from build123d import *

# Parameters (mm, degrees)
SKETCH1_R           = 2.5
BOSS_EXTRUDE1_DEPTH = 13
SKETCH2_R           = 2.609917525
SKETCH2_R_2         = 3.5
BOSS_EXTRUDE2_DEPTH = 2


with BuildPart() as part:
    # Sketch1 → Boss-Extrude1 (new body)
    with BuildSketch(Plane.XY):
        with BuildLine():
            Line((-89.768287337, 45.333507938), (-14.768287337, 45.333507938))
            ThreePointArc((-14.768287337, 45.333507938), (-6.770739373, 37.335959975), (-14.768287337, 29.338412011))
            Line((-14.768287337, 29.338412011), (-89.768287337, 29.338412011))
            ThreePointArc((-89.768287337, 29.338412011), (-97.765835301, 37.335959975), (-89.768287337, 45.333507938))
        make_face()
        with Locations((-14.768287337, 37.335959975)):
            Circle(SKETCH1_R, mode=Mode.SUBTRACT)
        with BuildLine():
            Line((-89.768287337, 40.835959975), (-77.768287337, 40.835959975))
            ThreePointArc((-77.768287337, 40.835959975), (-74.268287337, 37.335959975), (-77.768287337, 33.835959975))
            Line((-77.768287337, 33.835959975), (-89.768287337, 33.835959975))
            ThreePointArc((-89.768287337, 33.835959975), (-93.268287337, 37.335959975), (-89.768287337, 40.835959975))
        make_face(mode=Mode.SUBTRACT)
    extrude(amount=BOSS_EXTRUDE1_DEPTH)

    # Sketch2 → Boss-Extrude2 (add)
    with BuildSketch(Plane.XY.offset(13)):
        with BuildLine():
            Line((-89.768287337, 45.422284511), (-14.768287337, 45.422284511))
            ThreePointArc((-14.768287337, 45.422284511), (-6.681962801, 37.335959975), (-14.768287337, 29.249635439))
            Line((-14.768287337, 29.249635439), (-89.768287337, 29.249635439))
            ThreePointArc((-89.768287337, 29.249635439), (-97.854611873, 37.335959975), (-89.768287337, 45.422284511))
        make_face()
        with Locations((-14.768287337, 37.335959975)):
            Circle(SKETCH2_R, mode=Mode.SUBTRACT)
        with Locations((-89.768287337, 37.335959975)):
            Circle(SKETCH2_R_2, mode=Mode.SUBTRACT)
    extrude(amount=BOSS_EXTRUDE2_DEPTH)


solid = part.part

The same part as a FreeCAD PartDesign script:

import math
import FreeCAD as App
import Part
import Sketcher

V = App.Vector

doc = App.newDocument("Part")
body = doc.addObject("PartDesign::Body", "Body")

sketch1 = body.newObject("Sketcher::SketchObject", "Sketch")
sketch1.AttachmentSupport = (doc.getObject("XY_Plane"), [""])
sketch1.MapMode = "FlatFace"
sketch1.addGeometry([
    Part.LineSegment(V(-14.8, 45.3, 0), V(-89.8, 45.3, 0)),
    Part.ArcOfCircle(Part.Circle(V(-89.8, 37.3, 0), V(0, 0, 1), 8), math.radians(90), math.radians(270)),
    Part.LineSegment(V(-89.8, 29.3, 0), V(-14.8, 29.3, 0)),
    Part.ArcOfCircle(Part.Circle(V(-14.8, 37.3, 0), V(0, 0, 1), 8), math.radians(-90), math.radians(90)),
    Part.Circle(V(-14.8, 37.3, 0), V(0, 0, 1), 2.5),
    Part.LineSegment(V(-89.8, 40.8, 0), V(-77.8, 40.8, 0)),
    Part.ArcOfCircle(Part.Circle(V(-77.8, 37.3, 0), V(0, 0, 1), 3.5), math.radians(-90), math.radians(90)),
    Part.LineSegment(V(-77.8, 33.8, 0), V(-89.8, 33.8, 0)),
    Part.ArcOfCircle(Part.Circle(V(-89.8, 37.3, 0), V(0, 0, 1), 3.5), math.radians(90), math.radians(270)),
], False)
sketch1.addConstraint([
    Sketcher.Constraint("Tangent", 0, 2, 1, 1),
    Sketcher.Constraint("Tangent", 1, 2, 2, 1),
    Sketcher.Constraint("Tangent", 2, 2, 3, 1),
    Sketcher.Constraint("Tangent", 3, 2, 0, 1),
    Sketcher.Constraint("Tangent", 5, 2, 6, 2),
    Sketcher.Constraint("Tangent", 6, 1, 7, 1),
    Sketcher.Constraint("Tangent", 7, 2, 8, 2),
    Sketcher.Constraint("Tangent", 8, 1, 5, 1),
    Sketcher.Constraint("Horizontal", 0),
    Sketcher.Constraint("Horizontal", 2),
    Sketcher.Constraint("Horizontal", 5),
    Sketcher.Constraint("Horizontal", 7),
    Sketcher.Constraint("Coincident", 4, 3, 3, 3),
    Sketcher.Constraint("Coincident", 8, 3, 1, 3),
    Sketcher.Constraint("Diameter", 4, 5.0),
    Sketcher.Constraint("Radius", 6, 3.5),
    Sketcher.Constraint("DistanceX", 0, 2, 0, 1, 75.0),
    Sketcher.Constraint("DistanceX", 5, 1, 5, 2, 12.0),
    Sketcher.Constraint("Radius", 1, 7.997548),
    Sketcher.Constraint("DistanceY", -1, 1, 1, 3, 37.33596),
    Sketcher.Constraint("DistanceX", 1, 3, -1, 1, 89.768287),
])
pad1 = body.newObject("PartDesign::Pad", "Pad")
pad1.Profile = sketch1
pad1.Length = 13

sketch2 = body.newObject("Sketcher::SketchObject", "Sketch001")
sketch2.AttachmentSupport = (doc.getObject("XY_Plane"), [""])
sketch2.MapMode = "FlatFace"
sketch2.AttachmentOffset = App.Placement(V(0, 0, 13), App.Rotation())
sketch2.addGeometry([
    Part.LineSegment(V(-14.8, 45.4, 0), V(-89.8, 45.4, 0)),
    Part.ArcOfCircle(Part.Circle(V(-89.8, 37.3, 0), V(0, 0, 1), 8.1), math.radians(90), math.radians(270)),
    Part.LineSegment(V(-89.8, 29.2, 0), V(-14.8, 29.2, 0)),
    Part.ArcOfCircle(Part.Circle(V(-14.8, 37.3, 0), V(0, 0, 1), 8.1), math.radians(-90), math.radians(90)),
    Part.Circle(V(-14.8, 37.3, 0), V(0, 0, 1), 2.6),
    Part.Circle(V(-89.8, 37.3, 0), V(0, 0, 1), 3.5),
], False)
sketch2.addConstraint([
    Sketcher.Constraint("Tangent", 0, 2, 1, 1),
    Sketcher.Constraint("Tangent", 1, 2, 2, 1),
    Sketcher.Constraint("Tangent", 2, 2, 3, 1),
    Sketcher.Constraint("Tangent", 3, 2, 0, 1),
    Sketcher.Constraint("Horizontal", 0),
    Sketcher.Constraint("Horizontal", 2),
    Sketcher.Constraint("Coincident", 4, 3, 3, 3),
    Sketcher.Constraint("Coincident", 5, 3, 1, 3),
    Sketcher.Constraint("Diameter", 5, 7.0),
    Sketcher.Constraint("DistanceX", 0, 2, 0, 1, 75.0),
    Sketcher.Constraint("Diameter", 4, 5.219835),
    Sketcher.Constraint("Radius", 1, 8.086325),
    Sketcher.Constraint("DistanceY", -1, 1, 1, 3, 37.33596),
    Sketcher.Constraint("DistanceX", 1, 3, -1, 1, 89.768287),
])
pad2 = body.newObject("PartDesign::Pad", "Pad001")
pad2.Profile = sketch2
pad2.Length = 2

doc.recompute()
